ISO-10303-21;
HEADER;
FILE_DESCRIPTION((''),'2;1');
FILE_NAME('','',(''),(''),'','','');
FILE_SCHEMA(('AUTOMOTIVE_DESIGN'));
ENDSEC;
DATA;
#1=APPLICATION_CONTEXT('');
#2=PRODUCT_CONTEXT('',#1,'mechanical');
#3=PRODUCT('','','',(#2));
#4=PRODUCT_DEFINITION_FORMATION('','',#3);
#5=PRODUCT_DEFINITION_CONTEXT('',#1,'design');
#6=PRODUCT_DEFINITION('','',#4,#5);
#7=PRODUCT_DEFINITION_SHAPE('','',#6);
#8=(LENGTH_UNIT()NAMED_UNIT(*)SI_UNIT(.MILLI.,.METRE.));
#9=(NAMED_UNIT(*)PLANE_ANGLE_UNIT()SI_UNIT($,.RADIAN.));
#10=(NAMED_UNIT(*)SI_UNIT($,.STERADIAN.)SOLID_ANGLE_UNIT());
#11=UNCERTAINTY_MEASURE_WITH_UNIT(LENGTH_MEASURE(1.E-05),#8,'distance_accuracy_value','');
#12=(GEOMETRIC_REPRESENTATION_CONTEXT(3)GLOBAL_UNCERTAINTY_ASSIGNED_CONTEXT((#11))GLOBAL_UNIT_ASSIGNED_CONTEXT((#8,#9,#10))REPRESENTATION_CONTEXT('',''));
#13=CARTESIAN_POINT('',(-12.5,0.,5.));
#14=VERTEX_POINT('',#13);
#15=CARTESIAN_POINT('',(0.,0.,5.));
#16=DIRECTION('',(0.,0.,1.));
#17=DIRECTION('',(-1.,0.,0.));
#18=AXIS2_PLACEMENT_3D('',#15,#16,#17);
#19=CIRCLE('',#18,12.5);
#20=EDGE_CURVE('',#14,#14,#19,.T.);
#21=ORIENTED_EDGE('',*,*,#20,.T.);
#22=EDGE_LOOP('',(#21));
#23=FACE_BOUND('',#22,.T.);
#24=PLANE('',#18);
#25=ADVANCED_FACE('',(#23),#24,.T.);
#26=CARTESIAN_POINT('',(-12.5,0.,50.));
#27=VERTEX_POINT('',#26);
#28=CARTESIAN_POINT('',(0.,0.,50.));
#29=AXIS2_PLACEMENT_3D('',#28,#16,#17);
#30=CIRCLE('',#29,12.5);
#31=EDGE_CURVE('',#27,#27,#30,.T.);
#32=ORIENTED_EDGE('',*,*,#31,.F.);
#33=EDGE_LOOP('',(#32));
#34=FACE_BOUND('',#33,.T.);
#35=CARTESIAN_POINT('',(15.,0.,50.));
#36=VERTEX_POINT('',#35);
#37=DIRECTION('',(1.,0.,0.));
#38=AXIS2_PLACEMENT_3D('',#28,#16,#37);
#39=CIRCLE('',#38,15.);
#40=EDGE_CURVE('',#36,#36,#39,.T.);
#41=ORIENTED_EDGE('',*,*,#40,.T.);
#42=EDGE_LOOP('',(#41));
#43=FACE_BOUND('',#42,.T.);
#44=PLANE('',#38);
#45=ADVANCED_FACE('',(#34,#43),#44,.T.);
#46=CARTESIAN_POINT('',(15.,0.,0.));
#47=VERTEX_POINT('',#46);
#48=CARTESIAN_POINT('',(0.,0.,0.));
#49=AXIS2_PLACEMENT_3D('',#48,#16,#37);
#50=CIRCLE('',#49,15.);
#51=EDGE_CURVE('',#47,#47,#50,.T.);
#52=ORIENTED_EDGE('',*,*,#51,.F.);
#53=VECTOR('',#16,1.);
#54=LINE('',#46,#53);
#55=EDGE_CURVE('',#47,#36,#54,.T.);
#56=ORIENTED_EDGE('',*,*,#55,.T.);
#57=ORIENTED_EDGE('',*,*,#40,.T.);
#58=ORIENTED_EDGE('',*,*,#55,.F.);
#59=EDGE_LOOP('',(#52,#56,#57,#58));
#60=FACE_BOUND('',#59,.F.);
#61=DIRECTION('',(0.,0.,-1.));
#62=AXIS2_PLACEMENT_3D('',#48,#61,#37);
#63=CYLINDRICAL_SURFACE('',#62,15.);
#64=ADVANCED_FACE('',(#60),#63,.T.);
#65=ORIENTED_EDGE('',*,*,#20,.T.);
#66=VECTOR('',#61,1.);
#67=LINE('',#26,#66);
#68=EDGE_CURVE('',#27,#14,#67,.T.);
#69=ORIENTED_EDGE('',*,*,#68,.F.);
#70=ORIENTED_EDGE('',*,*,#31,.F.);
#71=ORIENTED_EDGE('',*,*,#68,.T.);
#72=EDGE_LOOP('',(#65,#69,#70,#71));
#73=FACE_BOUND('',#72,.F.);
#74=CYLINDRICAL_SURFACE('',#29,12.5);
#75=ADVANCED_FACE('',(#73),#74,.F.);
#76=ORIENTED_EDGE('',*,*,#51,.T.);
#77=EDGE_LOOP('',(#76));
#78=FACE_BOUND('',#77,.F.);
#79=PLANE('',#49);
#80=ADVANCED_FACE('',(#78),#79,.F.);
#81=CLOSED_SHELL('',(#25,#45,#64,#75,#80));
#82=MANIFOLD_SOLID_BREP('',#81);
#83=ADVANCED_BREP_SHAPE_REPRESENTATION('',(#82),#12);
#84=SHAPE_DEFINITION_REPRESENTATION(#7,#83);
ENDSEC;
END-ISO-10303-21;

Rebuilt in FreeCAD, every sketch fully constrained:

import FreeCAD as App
import Part
import Sketcher
Q = App.Units.Quantity

doc = App.newDocument("Part")
body = doc.addObject("PartDesign::Body", "Body")

sketch1 = body.newObject("Sketcher::SketchObject", "Sketch")
sketch1.AttachmentSupport = (doc.getObject("XY_Plane"), [""])
sketch1.MapMode = "FlatFace"
sketch1.addGeometry(Part.Circle(App.Vector(0, 0, 0), App.Vector(0, 0, 1), 15), False)
sketch1.addConstraint([
    Sketcher.Constraint("Coincident", 0, 3, -1, 1),
    Sketcher.Constraint("Diameter", 0, Q("30 mm")),
])
pad1 = body.newObject("PartDesign::Pad", "Pad")
pad1.Profile = sketch1
pad1.Length = 50

sketch2 = body.newObject("Sketcher::SketchObject", "Sketch001")
sketch2.AttachmentSupport = (doc.getObject("XY_Plane"), [""])
sketch2.MapMode = "FlatFace"
sketch2.AttachmentOffset = App.Placement(App.Vector(0, 0, 50), App.Rotation())
sketch2.addGeometry(Part.Circle(App.Vector(0, 0, 0), App.Vector(0, 0, 1), 12), False)
sketch2.addConstraint([
    Sketcher.Constraint("Coincident", 0, 3, -1, 1),
    Sketcher.Constraint("Diameter", 0, Q("25 mm")),
])
pocket1 = body.newObject("PartDesign::Pocket", "Pocket")
pocket1.Profile = sketch2
pocket1.Length = 45

doc.recompute()
